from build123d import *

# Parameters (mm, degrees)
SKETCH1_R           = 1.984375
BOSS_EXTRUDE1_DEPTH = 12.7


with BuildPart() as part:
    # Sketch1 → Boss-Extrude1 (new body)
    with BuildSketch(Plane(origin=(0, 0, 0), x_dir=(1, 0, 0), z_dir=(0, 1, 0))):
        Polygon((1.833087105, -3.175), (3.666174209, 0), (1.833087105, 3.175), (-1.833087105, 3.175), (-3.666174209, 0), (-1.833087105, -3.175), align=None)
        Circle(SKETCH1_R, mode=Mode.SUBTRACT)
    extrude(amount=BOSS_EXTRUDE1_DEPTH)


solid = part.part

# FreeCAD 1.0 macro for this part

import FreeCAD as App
import Part
import Sketcher
Q = App.Units.Quantity


def add_polygon(sketch, points):
    """Adds a closed chain of lines whose ends are joined by coincident constraints."""
    first, n = sketch.GeometryCount, len(points)
    for a, b in zip(points, points[1:] + points[:1]):
        sketch.addGeometry(Part.LineSegment(App.Vector(*a, 0), App.Vector(*b, 0)), False)
    for i in range(n):
        sketch.addConstraint(Sketcher.Constraint("Coincident", first + i, 2, first + (i + 1) % n, 1))

doc = App.newDocument("Part")
body = doc.addObject("PartDesign::Body", "Body")

# Sketch on XZ plane
sketch1 = body.newObject("Sketcher::SketchObject", "Sketch")
sketch1.AttachmentSupport = (doc.getObject("XZ_Plane"), [""])
sketch1.MapMode = "FlatFace"
add_polygon(sketch1, [(1.8, 3.2), (3.7, 0), (1.8, -3.2), (-1.8, -3.2), (-3.7, 0), (-1.8, 3.2)])  # lines 0-5
sketch1.addGeometry(Part.Circle(App.Vector(0, 0, 0), App.Vector(0, 0, 1), 2), False)  # 6
sketch1.addConstraint([
    Sketcher.Constraint("Horizontal", 2),
    Sketcher.Constraint("Horizontal", 5),
    Sketcher.Constraint("Coincident", 6, 3, -1, 1),
    Sketcher.Constraint("Symmetric", 0, 2, 3, 2, -1, 1),
    Sketcher.Constraint("Symmetric", 1, 2, 4, 2, -1, 1),
    Sketcher.Constraint("PointOnObject", 0, 2, -1),
    Sketcher.Constraint("Parallel", 0, 3),
    Sketcher.Constraint("Vertical", 2, 2, 4, 2),
    Sketcher.Constraint("Diameter", 6, Q("0.15625 in")),
    Sketcher.Constraint("Angle", 0, Q("-60 deg")),
    Sketcher.Constraint("DistanceY", 2, 2, 4, 2, Q("0.25 in")),
    Sketcher.Constraint("DistanceX", 2, 2, 2, 1, 3.666174),
])
pad1 = body.newObject("PartDesign::Pad", "Pad")
pad1.Profile = sketch1
pad1.Length = Q("0.5 in")
pad1.Reversed = True

doc.recompute()
